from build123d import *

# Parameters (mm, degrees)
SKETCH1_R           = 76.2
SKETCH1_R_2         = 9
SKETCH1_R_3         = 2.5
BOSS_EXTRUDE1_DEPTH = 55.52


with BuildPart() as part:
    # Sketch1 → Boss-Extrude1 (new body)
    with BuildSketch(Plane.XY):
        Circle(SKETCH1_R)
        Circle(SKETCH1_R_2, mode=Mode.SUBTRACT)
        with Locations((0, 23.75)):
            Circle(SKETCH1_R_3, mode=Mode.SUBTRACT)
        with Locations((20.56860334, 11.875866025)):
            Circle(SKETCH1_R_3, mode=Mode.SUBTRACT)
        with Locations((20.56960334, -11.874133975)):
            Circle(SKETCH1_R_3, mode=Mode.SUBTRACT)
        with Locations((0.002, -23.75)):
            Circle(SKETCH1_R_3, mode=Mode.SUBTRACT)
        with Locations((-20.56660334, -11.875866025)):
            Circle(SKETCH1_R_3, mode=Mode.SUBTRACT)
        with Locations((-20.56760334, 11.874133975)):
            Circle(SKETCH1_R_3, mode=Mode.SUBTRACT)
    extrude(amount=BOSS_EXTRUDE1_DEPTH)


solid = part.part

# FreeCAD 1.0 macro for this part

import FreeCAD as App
import Part
import Sketcher

doc = App.newDocument("Part")
body = doc.addObject("PartDesign::Body", "Body")

sketch1 = body.newObject("Sketcher::SketchObject", "Sketch")
sketch1.AttachmentSupport = (doc.getObject("XY_Plane"), [""])
sketch1.MapMode = "FlatFace"
sketch1.addGeometry([
    Part.Circle(App.Vector(0, 0, 0), App.Vector(0, 0, 1), 76.2),
    Part.Circle(App.Vector(-20.6, -11.9, 0), App.Vector(0, 0, 1), 2.5),
    Part.Circle(App.Vector(0, -23.8, 0), App.Vector(0, 0, 1), 2.5),
    Part.Circle(App.Vector(20.6, -11.9, 0), App.Vector(0, 0, 1), 2.5),
    Part.Circle(App.Vector(-20.6, 11.9, 0), App.Vector(0, 0, 1), 2.5),
    Part.Circle(App.Vector(0, 0, 0), App.Vector(0, 0, 1), 9),
    Part.Circle(App.Vector(0, 23.8, 0), App.Vector(0, 0, 1), 2.5),
    Part.Circle(App.Vector(20.6, 11.9, 0), App.Vector(0, 0, 1), 2.5),
], False)
sketch1.addConstraint([
    Sketcher.Constraint("Coincident", 0, 3, -1, 1),
    Sketcher.Constraint("Coincident", 5, 3, -1, 1),
    Sketcher.Constraint("Equal", 1, 2),
    Sketcher.Constraint("Equal", 2, 3),
    Sketcher.Constraint("Equal", 3, 4),
    Sketcher.Constraint("Equal", 4, 6),
    Sketcher.Constraint("Equal", 6, 7),
    Sketcher.Constraint("PointOnObject", 6, 3, -2),
    Sketcher.Constraint("Diameter", 1, 5.0),
    Sketcher.Constraint("Diameter", 5, 18.0),
    Sketcher.Constraint("Diameter", 0, 152.4),
    Sketcher.Constraint("DistanceY", 2, 3, -1, 1, 23.75),
    Sketcher.Constraint("DistanceY", -1, 1, 6, 3, 23.75),
    Sketcher.Constraint("DistanceY", 1, 3, 4, 3, 23.75),
    Sketcher.Constraint("DistanceY", 3, 3, 7, 3, 23.75),
    Sketcher.Constraint("DistanceX", -1, 1, 2, 3, 0.002),
    Sketcher.Constraint("DistanceX", 4, 3, 1, 3, 0.001),
    Sketcher.Constraint("DistanceX", 7, 3, 3, 3, 0.001),
    Sketcher.Constraint("DistanceX", 1, 3, -1, 1, 20.566603),
    Sketcher.Constraint("DistanceY", 1, 3, -1, 1, 11.875866),
    Sketcher.Constraint("DistanceX", -1, 1, 3, 3, 20.569603),
    Sketcher.Constraint("DistanceY", 3, 3, -1, 1, 11.874134),
])
pad1 = body.newObject("PartDesign::Pad", "Pad")
pad1.Profile = sketch1
pad1.Length = 55.52

doc.recompute()
